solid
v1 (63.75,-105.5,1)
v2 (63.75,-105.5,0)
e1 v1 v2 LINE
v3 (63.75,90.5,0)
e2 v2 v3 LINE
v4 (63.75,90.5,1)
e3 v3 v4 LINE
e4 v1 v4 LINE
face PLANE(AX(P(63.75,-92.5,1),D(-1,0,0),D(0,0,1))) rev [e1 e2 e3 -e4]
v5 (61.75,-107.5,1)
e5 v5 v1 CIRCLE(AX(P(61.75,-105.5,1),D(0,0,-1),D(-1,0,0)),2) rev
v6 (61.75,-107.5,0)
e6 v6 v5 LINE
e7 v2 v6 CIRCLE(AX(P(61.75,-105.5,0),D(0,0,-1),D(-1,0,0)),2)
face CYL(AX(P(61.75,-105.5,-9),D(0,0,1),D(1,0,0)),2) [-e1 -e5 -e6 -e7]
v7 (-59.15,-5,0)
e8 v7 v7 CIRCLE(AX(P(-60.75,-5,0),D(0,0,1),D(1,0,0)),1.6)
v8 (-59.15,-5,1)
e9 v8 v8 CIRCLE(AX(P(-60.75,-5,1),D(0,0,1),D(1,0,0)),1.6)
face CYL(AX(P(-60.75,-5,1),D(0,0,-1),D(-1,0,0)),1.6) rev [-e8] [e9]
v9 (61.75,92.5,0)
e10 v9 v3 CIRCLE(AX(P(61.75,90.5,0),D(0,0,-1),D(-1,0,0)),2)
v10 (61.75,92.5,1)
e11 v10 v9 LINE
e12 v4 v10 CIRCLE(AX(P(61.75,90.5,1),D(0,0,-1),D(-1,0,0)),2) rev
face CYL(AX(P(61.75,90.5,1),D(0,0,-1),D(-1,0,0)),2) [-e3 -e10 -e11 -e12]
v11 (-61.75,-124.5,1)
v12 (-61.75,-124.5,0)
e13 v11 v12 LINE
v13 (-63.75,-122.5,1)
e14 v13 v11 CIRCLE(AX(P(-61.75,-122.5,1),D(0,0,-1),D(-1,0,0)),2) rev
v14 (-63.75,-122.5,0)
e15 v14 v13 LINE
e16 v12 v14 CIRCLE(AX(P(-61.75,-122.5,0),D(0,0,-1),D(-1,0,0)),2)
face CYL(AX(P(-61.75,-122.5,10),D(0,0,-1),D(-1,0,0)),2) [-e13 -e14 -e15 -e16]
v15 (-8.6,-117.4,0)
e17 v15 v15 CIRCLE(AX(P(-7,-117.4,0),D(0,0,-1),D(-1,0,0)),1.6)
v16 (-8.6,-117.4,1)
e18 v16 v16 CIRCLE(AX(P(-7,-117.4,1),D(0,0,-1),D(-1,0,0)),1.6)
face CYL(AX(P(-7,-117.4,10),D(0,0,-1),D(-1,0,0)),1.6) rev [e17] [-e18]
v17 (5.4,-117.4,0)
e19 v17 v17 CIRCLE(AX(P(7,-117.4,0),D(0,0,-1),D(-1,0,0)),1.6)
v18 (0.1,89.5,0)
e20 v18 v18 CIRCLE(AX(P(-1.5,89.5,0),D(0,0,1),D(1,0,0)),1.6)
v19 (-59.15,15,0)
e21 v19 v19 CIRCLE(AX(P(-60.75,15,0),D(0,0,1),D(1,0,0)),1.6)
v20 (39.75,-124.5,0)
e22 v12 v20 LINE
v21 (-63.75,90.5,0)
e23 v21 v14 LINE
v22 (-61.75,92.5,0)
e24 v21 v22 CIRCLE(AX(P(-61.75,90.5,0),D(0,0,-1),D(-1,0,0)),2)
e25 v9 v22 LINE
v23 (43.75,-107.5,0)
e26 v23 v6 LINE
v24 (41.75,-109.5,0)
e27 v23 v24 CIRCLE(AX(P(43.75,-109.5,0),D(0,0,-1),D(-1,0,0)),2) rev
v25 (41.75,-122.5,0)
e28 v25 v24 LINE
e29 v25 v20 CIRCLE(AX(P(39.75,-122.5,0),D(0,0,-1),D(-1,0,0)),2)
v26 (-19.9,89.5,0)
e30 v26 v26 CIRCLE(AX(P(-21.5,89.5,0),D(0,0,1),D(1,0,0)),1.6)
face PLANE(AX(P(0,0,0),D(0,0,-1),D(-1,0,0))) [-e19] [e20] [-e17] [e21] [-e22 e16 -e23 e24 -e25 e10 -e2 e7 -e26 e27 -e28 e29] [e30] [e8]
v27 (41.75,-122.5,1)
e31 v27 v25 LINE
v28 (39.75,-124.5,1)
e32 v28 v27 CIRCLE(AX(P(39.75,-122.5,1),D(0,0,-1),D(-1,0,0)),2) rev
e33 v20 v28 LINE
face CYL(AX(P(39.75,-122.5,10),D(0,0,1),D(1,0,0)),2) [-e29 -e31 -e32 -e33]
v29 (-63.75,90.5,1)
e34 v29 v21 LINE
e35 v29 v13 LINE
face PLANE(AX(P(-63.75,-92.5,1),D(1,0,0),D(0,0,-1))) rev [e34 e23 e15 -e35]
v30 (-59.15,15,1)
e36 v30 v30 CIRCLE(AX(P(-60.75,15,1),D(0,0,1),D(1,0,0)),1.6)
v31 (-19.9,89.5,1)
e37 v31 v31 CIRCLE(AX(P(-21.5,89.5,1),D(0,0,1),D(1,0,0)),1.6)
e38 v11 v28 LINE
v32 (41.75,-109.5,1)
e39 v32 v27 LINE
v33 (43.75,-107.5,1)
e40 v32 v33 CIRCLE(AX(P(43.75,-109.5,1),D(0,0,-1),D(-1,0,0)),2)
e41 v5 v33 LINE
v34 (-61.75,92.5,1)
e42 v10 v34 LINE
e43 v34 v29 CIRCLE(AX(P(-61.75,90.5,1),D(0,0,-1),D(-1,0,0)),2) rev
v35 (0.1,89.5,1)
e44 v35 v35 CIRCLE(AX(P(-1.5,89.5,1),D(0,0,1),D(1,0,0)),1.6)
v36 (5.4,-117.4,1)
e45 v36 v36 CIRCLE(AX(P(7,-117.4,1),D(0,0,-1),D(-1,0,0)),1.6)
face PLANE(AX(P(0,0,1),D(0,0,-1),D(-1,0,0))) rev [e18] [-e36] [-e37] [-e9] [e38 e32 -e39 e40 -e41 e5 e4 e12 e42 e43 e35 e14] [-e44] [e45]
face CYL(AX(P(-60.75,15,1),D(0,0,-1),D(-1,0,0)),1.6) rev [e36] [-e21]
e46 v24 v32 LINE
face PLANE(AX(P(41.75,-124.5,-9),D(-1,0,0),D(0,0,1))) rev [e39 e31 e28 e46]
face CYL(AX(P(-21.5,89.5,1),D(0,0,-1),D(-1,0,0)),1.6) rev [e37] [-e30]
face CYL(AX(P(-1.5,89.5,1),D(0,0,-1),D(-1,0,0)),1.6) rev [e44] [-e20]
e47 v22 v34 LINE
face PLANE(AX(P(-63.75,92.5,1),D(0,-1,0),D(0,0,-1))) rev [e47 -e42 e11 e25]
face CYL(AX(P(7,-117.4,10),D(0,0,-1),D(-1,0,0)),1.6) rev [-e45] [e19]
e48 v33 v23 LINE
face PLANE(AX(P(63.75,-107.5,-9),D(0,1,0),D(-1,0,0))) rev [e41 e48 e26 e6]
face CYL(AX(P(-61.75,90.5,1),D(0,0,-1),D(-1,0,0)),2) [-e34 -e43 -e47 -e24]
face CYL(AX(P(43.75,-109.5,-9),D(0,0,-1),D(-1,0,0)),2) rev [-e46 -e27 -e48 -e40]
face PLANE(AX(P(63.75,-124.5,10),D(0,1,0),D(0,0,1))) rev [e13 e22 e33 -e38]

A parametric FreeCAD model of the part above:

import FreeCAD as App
import Part
import Sketcher

V = App.Vector
Q = App.Units.Quantity


def edges_at(feature, points):
    """Names of the edges that pass closest to the given points."""
    edges = feature.Shape.Edges
    near = lambda p: min(range(len(edges)), key=lambda i: edges[i].distToShape(Part.Vertex(*p))[0])
    return sorted({f"Edge{near(p) + 1}" for p in points})

doc = App.newDocument("Part")
body = doc.addObject("PartDesign::Body", "Body")

# Sketch on XY plane
sketch1 = body.newObject("Sketcher::SketchObject", "Sketch")
sketch1.AttachmentSupport = (doc.getObject("XY_Plane"), [""])
sketch1.MapMode = "FlatFace"
sketch1.addGeometry([
    Part.LineSegment(V(-63.8, 92.5, 0), V(-63.8, -92.5, 0)),  # 0
    Part.LineSegment(V(-63.8, -92.5, 0), V(63.8, -92.5, 0)),  # 1
    Part.LineSegment(V(63.8, -92.5, 0), V(63.8, 92.5, 0)),  # 2
    Part.LineSegment(V(63.8, 92.5, 0), V(-63.8, 92.5, 0)),  # 3
    Part.Circle(V(-60.8, -5, 0), V(0, 0, 1), 1.6),  # 4
    Part.Circle(V(-60.8, 15, 0), V(0, 0, 1), 1.6),  # 5
    Part.Circle(V(-21.5, 89.5, 0), V(0, 0, 1), 1.6),  # 6
    Part.Circle(V(-1.5, 89.5, 0), V(0, 0, 1), 1.6),  # 7
], False)
sketch1.addConstraint([
    Sketcher.Constraint("Coincident", 0, 2, 1, 1),
    Sketcher.Constraint("Coincident", 1, 2, 2, 1),
    Sketcher.Constraint("Coincident", 2, 2, 3, 1),
    Sketcher.Constraint("Coincident", 3, 2, 0, 1),
    Sketcher.Constraint("Vertical", 0),
    Sketcher.Constraint("Horizontal", 1),
    Sketcher.Constraint("Vertical", 2),
    Sketcher.Constraint("Horizontal", 3),
    Sketcher.Constraint("Equal", 4, 5),
    Sketcher.Constraint("Equal", 5, 6),
    Sketcher.Constraint("Equal", 6, 7),
    Sketcher.Constraint("Symmetric", 0, 2, 2, 2, -1, 1),
    Sketcher.Constraint("Horizontal", 6, 3, 7, 3),
    Sketcher.Constraint("Vertical", 4, 3, 5, 3),
    Sketcher.Constraint("Diameter", 4, Q("3.2 mm")),
    Sketcher.Constraint("DistanceY", 0, 2, 0, 1, Q("185 mm")),
    Sketcher.Constraint("DistanceX", 1, 1, 1, 2, Q("127.5 mm")),
    Sketcher.Constraint("DistanceY", 4, 3, -1, 1, Q("5 mm")),
    Sketcher.Constraint("DistanceY", -1, 1, 5, 3, Q("15 mm")),
    Sketcher.Constraint("DistanceX", 6, 3, 7, 3, Q("20 mm")),
    Sketcher.Constraint("DistanceX", 0, 2, 4, 3, Q("3 mm")),
    Sketcher.Constraint("DistanceY", 0, 2, 6, 3, Q("182 mm")),
    Sketcher.Constraint("DistanceX", 6, 3, -1, 1, Q("21.5 mm")),
])
pad1 = body.newObject("PartDesign::Pad", "Pad")
pad1.Profile = sketch1
pad1.Length = 1

# Sketch on XY plane
sketch2 = body.newObject("Sketcher::SketchObject", "Sketch001")
sketch2.AttachmentSupport = (doc.getObject("XY_Plane"), [""])
sketch2.MapMode = "FlatFace"
sketch2.AttachmentOffset = App.Placement(V(0, 0, 1), App.Rotation())
sketch2.addGeometry([
    Part.LineSegment(V(-64, -92, 0), V(-64, -128, 0)),
    Part.LineSegment(V(-64, -128, 0), V(64, -128, 0)),
    Part.LineSegment(V(64, -128, 0), V(64, -92, 0)),
    Part.LineSegment(V(64, -92, 0), V(-64, -92, 0)),
], False)
sketch2.addConstraint([
    Sketcher.Constraint("Coincident", 0, 2, 1, 1),
    Sketcher.Constraint("Coincident", 1, 2, 2, 1),
    Sketcher.Constraint("Coincident", 2, 2, 3, 1),
    Sketcher.Constraint("Coincident", 3, 2, 0, 1),
    Sketcher.Constraint("Vertical", 0),
    Sketcher.Constraint("Horizontal", 1),
    Sketcher.Constraint("Vertical", 2),
    Sketcher.Constraint("Horizontal", 3),
    Sketcher.Constraint("DistanceY", 0, 2, 0, 1, Q("35 mm")),
    Sketcher.Constraint("DistanceX", 1, 1, 1, 2, Q("127.5 mm")),
    Sketcher.Constraint("DistanceY", 0, 2, -1, 1, Q("127.5 mm")),
    Sketcher.Constraint("DistanceX", 0, 2, -1, 1, Q("63.75 mm")),
])
pad2 = body.newObject("PartDesign::Pad", "Pad001")
pad2.Profile = sketch2
pad2.Length = 1
pad2.Reversed = True

# Sketch on XY plane
sketch3 = body.newObject("Sketcher::SketchObject", "Sketch002")
sketch3.AttachmentSupport = (doc.getObject("XY_Plane"), [""])
sketch3.MapMode = "FlatFace"
sketch3.addGeometry([
    Part.Circle(V(7, -117.4, 0), V(0, 0, 1), 1.6),
    Part.Circle(V(-7, -117.4, 0), V(0, 0, 1), 1.6),
], False)
sketch3.addConstraint([
    Sketcher.Constraint("Equal", 0, 1),
    Sketcher.Constraint("Symmetric", 0, 3, 1, 3, -2),
    Sketcher.Constraint("Diameter", 0, Q("3.2 mm")),
    Sketcher.Constraint("DistanceX", -1, 1, 0, 3, Q("7 mm")),
    Sketcher.Constraint("DistanceY", 0, 3, -1, 1, Q("117.4 mm")),
])
pocket1 = body.newObject("PartDesign::Pocket", "Pocket")
pocket1.Profile = sketch3
pocket1.Length = 10
pocket1.Reversed = True

# Sketch on XY plane
sketch4 = body.newObject("Sketcher::SketchObject", "Sketch003")
sketch4.AttachmentSupport = (doc.getObject("XY_Plane"), [""])
sketch4.MapMode = "FlatFace"
sketch4.addGeometry([
    Part.LineSegment(V(63.8, -124.5, 0), V(63.8, -127.5, 0)),
    Part.LineSegment(V(63.8, -127.5, 0), V(-63.8, -127.5, 0)),
    Part.LineSegment(V(-63.8, -127.5, 0), V(-63.8, -124.5, 0)),
    Part.LineSegment(V(-63.8, -124.5, 0), V(63.8, -124.5, 0)),
], False)
sketch4.addConstraint([
    Sketcher.Constraint("Coincident", 0, 2, 1, 1),
    Sketcher.Constraint("Coincident", 1, 2, 2, 1),
    Sketcher.Constraint("Coincident", 2, 2, 3, 1),
    Sketcher.Constraint("Coincident", 3, 2, 0, 1),
    Sketcher.Constraint("Vertical", 0),
    Sketcher.Constraint("Horizontal", 1),
    Sketcher.Constraint("Vertical", 2),
    Sketcher.Constraint("Horizontal", 3),
    Sketcher.Constraint("DistanceY", 0, 2, 0, 1, Q("3 mm")),
    Sketcher.Constraint("DistanceX", 1, 2, 1, 1, Q("127.5 mm")),
    Sketcher.Constraint("DistanceY", 0, 2, -1, 1, Q("127.5 mm")),
    Sketcher.Constraint("DistanceX", -1, 1, 0, 2, Q("63.75 mm")),
])
pocket2 = body.newObject("PartDesign::Pocket", "Pocket001")
pocket2.Profile = sketch4
pocket2.Length = 10
pocket2.Reversed = True

# Sketch on XY plane
sketch5 = body.newObject("Sketcher::SketchObject", "Sketch004")
sketch5.AttachmentSupport = (doc.getObject("XY_Plane"), [""])
sketch5.MapMode = "FlatFace"
sketch5.AttachmentOffset = App.Placement(V(0, 0, 1), App.Rotation())
sketch5.addGeometry([
    Part.LineSegment(V(42, -108, 0), V(42, -124, 0)),
    Part.LineSegment(V(42, -124, 0), V(64, -124, 0)),
    Part.LineSegment(V(64, -124, 0), V(64, -108, 0)),
    Part.LineSegment(V(64, -108, 0), V(42, -108, 0)),
], False)
sketch5.addConstraint([
    Sketcher.Constraint("Coincident", 0, 2, 1, 1),
    Sketcher.Constraint("Coincident", 1, 2, 2, 1),
    Sketcher.Constraint("Coincident", 2, 2, 3, 1),
    Sketcher.Constraint("Coincident", 3, 2, 0, 1),
    Sketcher.Constraint("Vertical", 0),
    Sketcher.Constraint("Horizontal", 1),
    Sketcher.Constraint("Vertical", 2),
    Sketcher.Constraint("Horizontal", 3),
    Sketcher.Constraint("DistanceX", 1, 1, 1, 2, Q("22 mm")),
    Sketcher.Constraint("DistanceY", 0, 2, 0, 1, Q("17 mm")),
    Sketcher.Constraint("DistanceY", 0, 2, -1, 1, Q("124.5 mm")),
    Sketcher.Constraint("DistanceX", -1, 1, 0, 2, Q("41.75 mm")),
])
pocket3 = body.newObject("PartDesign::Pocket", "Pocket002")
pocket3.Profile = sketch5
pocket3.Length = 10
doc.recompute()

fillet = body.newObject("PartDesign::Fillet", "Fillet")
fillet.Base = (pocket3, edges_at(pocket3, [
    (-63.75, -124.5, 0.5),
    (41.75, -124.5, 0.5),
    (-63.75, 92.5, 0.5),
    (63.75, 92.5, 0.5),
    (63.75, -107.5, 0.5),
    (41.75, -107.5, 0.5),
]))
fillet.Radius = 2

doc.recompute()
